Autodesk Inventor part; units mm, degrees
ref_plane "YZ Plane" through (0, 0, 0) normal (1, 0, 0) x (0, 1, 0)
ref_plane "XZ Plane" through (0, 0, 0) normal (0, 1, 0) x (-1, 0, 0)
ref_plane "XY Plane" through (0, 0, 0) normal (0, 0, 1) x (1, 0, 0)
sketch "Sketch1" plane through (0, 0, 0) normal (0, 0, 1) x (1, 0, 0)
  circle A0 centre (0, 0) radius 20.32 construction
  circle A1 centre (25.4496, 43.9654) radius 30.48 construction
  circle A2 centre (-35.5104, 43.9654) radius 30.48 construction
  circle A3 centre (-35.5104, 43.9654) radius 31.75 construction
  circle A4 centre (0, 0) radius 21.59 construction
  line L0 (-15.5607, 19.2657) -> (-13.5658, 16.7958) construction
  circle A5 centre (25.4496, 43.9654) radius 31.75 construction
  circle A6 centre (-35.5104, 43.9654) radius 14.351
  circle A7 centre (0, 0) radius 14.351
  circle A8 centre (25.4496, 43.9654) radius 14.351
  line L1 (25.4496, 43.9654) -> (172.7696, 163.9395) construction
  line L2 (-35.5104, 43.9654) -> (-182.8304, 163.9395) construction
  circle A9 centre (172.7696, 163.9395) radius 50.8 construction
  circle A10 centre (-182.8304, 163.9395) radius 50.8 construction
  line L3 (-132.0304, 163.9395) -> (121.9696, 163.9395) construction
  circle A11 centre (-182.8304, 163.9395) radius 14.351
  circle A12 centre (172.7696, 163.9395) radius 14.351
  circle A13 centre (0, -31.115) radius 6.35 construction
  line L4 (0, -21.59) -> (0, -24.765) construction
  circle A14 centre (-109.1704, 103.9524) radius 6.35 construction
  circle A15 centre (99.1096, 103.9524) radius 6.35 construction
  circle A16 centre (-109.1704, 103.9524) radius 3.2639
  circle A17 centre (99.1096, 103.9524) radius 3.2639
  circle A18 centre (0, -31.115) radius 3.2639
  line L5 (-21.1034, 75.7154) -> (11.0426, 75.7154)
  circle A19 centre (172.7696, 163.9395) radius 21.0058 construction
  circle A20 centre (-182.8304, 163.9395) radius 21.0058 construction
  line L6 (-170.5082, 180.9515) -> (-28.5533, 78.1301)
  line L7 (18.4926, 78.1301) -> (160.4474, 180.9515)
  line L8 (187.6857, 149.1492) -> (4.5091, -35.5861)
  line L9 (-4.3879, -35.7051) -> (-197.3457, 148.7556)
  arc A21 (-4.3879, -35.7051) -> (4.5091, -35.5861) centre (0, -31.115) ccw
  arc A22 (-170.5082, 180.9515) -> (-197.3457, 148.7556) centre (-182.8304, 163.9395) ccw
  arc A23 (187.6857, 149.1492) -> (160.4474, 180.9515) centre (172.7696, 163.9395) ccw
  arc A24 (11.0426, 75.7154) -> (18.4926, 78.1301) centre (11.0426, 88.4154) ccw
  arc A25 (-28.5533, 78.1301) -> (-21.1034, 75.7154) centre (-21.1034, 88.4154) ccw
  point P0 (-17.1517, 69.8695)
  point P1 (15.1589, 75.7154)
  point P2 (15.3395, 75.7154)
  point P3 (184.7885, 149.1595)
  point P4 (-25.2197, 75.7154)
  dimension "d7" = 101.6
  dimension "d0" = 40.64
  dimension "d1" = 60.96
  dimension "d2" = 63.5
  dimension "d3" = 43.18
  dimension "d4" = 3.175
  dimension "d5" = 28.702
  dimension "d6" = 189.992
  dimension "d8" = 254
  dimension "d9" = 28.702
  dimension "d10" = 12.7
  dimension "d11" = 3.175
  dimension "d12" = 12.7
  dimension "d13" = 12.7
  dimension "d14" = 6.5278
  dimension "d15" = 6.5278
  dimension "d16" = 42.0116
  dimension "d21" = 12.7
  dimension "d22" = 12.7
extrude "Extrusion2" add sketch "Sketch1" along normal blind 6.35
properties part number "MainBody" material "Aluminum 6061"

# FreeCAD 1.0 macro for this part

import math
import FreeCAD as App
import Part
import Sketcher
Q = App.Units.Quantity

doc = App.newDocument("Part")
params = doc.addObject("Spreadsheet::Sheet", "Params")
for row, (alias, value) in enumerate([
    ("sketch1_radius", "0.5 in"),
    ("sketch1_diameter", "1.13 in"),
    ("sketch1_radius2", "0.25 in"),
    ("sketch1_diameter2", "0.257 in"),
    ("sketch1_radius3", "0.827 in"),
    ("pad1_length", "0.25 in"),
], start=1):
    params.set(f"A{row}", alias)
    params.set(f"B{row}", "=" + value)
    params.setAlias(f"B{row}", alias)

body = doc.addObject("PartDesign::Body", "Body")

# Sketch on XY plane
sketch1 = body.newObject("Sketcher::SketchObject", "Sketch")
sketch1.AttachmentSupport = (doc.getObject("XY_Plane"), [""])
sketch1.MapMode = "FlatFace"
sketch1.addGeometry(Part.LineSegment(App.Vector(11, 75.7, 0), App.Vector(-21.1, 75.7, 0)), False)
sketch1.addGeometry(Part.ArcOfCircle(Part.Circle(App.Vector(-21.1, 88.4, 0), App.Vector(0, 0, 1), 12.7), math.radians(-126), math.radians(-90)), False)
sketch1.addGeometry(Part.LineSegment(App.Vector(-28.6, 78.1, 0), App.Vector(-170.5, 181, 0)), False)
sketch1.addGeometry(Part.ArcOfCircle(Part.Circle(App.Vector(-182.8, 163.9, 0), App.Vector(0, 0, 1), 21), math.radians(54), math.radians(226)), False)
sketch1.addGeometry(Part.LineSegment(App.Vector(-197.3, 148.8, 0), App.Vector(-4.4, -35.7, 0)), False)
sketch1.addGeometry(Part.ArcOfCircle(Part.Circle(App.Vector(0, -31.1, 0), App.Vector(0, 0, 1), 6.4), math.radians(-134), math.radians(-45)), False)
sketch1.addGeometry(Part.LineSegment(App.Vector(4.5, -35.6, 0), App.Vector(187.7, 149.1, 0)), False)
sketch1.addGeometry(Part.ArcOfCircle(Part.Circle(App.Vector(172.8, 163.9, 0), App.Vector(0, 0, 1), 21), math.radians(-45), math.radians(126)), False)
sketch1.addGeometry(Part.LineSegment(App.Vector(160.4, 181, 0), App.Vector(18.5, 78.1, 0)), False)
sketch1.addGeometry(Part.ArcOfCircle(Part.Circle(App.Vector(11, 88.4, 0), App.Vector(0, 0, 1), 12.7), math.radians(-90), math.radians(-54)), False)
sketch1.addGeometry(Part.Circle(App.Vector(-35.5, 44, 0), App.Vector(0, 0, 1), 14.4), False)
sketch1.addGeometry(Part.Circle(App.Vector(0, -31.1, 0), App.Vector(0, 0, 1), 3.3), False)
sketch1.addGeometry(Part.Circle(App.Vector(0, 0, 0), App.Vector(0, 0, 1), 14.4), False)
sketch1.addGeometry(Part.Circle(App.Vector(25.4, 44, 0), App.Vector(0, 0, 1), 14.4), False)
sketch1.addGeometry(Part.Circle(App.Vector(-109.2, 104, 0), App.Vector(0, 0, 1), 3.3), False)
sketch1.addGeometry(Part.Circle(App.Vector(-182.8, 163.9, 0), App.Vector(0, 0, 1), 14.4), False)
sketch1.addGeometry(Part.Circle(App.Vector(99.1, 104, 0), App.Vector(0, 0, 1), 3.3), False)
sketch1.addGeometry(Part.Circle(App.Vector(172.8, 163.9, 0), App.Vector(0, 0, 1), 14.4), False)
sketch1.addConstraint(Sketcher.Constraint("Tangent", 0, 2, 1, 2))
sketch1.addConstraint(Sketcher.Constraint("Tangent", 1, 1, 2, 1))
sketch1.addConstraint(Sketcher.Constraint("Tangent", 2, 2, 3, 1))
sketch1.addConstraint(Sketcher.Constraint("Tangent", 3, 2, 4, 1))
sketch1.addConstraint(Sketcher.Constraint("Tangent", 4, 2, 5, 1))
sketch1.addConstraint(Sketcher.Constraint("Tangent", 5, 2, 6, 1))
sketch1.addConstraint(Sketcher.Constraint("Tangent", 6, 2, 7, 1))
sketch1.addConstraint(Sketcher.Constraint("Tangent", 7, 2, 8, 1))
sketch1.addConstraint(Sketcher.Constraint("Tangent", 8, 2, 9, 2))
sketch1.addConstraint(Sketcher.Constraint("Tangent", 9, 1, 0, 1))
sketch1.addConstraint(Sketcher.Constraint("Horizontal", 0))
sketch1.addConstraint(Sketcher.Constraint("Coincident", 12, 3, -1, 1))
sketch1.addConstraint(Sketcher.Constraint("Coincident", 11, 3, 5, 3))
sketch1.addConstraint(Sketcher.Constraint("Coincident", 15, 3, 3, 3))
sketch1.addConstraint(Sketcher.Constraint("Coincident", 17, 3, 7, 3))
sketch1.addConstraint(Sketcher.Constraint("Equal", 3, 7))
sketch1.addConstraint(Sketcher.Constraint("Equal", 1, 9))
sketch1.addConstraint(Sketcher.Constraint("Equal", 10, 12))
sketch1.addConstraint(Sketcher.Constraint("Equal", 12, 13))
sketch1.addConstraint(Sketcher.Constraint("Equal", 11, 14))
sketch1.addConstraint(Sketcher.Constraint("Equal", 13, 15))
sketch1.addConstraint(Sketcher.Constraint("Equal", 14, 16))
sketch1.addConstraint(Sketcher.Constraint("Equal", 15, 17))
sketch1.addConstraint(Sketcher.Constraint("PointOnObject", 5, 3, -2))
sketch1.addConstraint(Sketcher.Constraint("Horizontal", 3, 3, 7, 3))
sketch1.addConstraint(Sketcher.Constraint("Horizontal", 10, 3, 13, 3))
sketch1.addConstraint(Sketcher.Constraint("Horizontal", 14, 3, 16, 3))
sketch1.addConstraint(Sketcher.Constraint("Horizontal", 2, 2, 7, 2))
sketch1.addConstraint(Sketcher.Constraint("Radius", 1, Q("0.5 in")))
sketch1.addConstraint(Sketcher.Constraint("Diameter", 10, Q("1.13 in")))
sketch1.addConstraint(Sketcher.Constraint("Radius", 5, Q("0.25 in")))
sketch1.addConstraint(Sketcher.Constraint("Diameter", 11, Q("0.257 in")))
sketch1.addConstraint(Sketcher.Constraint("Radius", 3, Q("0.827 in")))
sketch1.addConstraint(Sketcher.Constraint("DistanceX", 10, 3, 13, 3, Q("2.4 in")))
sketch1.addConstraint(Sketcher.Constraint("DistanceX", 3, 3, 7, 3, Q("14 in")))
sketch1.addConstraint(Sketcher.Constraint("DistanceX", 3, 3, 10, 3, Q("5.8 in")))
sketch1.addConstraint(Sketcher.Constraint("DistanceX", 14, 3, 10, 3, Q("2.9 in")))
sketch1.addConstraint(Sketcher.Constraint("DistanceX", 13, 3, 16, 3, Q("2.9 in")))
sketch1.addConstraint(Sketcher.Constraint("Angle", 4, Q("-43.7103 deg")))
sketch1.addConstraint(Sketcher.Constraint("DistanceY", 10, 3, 1, 3, Q("1.75 in")))
sketch1.addConstraint(Sketcher.Constraint("DistanceX", 0, 2, 0, 1, Q("1.2656 in")))
sketch1.addConstraint(Sketcher.Constraint("DistanceY", 5, 3, -1, 1, Q("1.225 in")))
sketch1.addConstraint(Sketcher.Constraint("DistanceY", -1, 1, 1, 1, Q("3.076 in")))
sketch1.addConstraint(Sketcher.Constraint("DistanceY", -1, 1, 3, 3, Q("6.4543 in")))
sketch1.addConstraint(Sketcher.Constraint("DistanceY", 1, 3, 14, 3, Q("0.6117 in")))
sketch1.setExpression("Constraints[28]", "Params.sketch1_radius")
sketch1.setExpression("Constraints[29]", "Params.sketch1_diameter")
sketch1.setExpression("Constraints[30]", "Params.sketch1_radius2")
sketch1.setExpression("Constraints[31]", "Params.sketch1_diameter2")
sketch1.setExpression("Constraints[32]", "Params.sketch1_radius3")
pad1 = body.newObject("PartDesign::Pad", "Pad")
pad1.Profile = sketch1
pad1.setExpression("Length", "Params.pad1_length")

doc.recompute()
